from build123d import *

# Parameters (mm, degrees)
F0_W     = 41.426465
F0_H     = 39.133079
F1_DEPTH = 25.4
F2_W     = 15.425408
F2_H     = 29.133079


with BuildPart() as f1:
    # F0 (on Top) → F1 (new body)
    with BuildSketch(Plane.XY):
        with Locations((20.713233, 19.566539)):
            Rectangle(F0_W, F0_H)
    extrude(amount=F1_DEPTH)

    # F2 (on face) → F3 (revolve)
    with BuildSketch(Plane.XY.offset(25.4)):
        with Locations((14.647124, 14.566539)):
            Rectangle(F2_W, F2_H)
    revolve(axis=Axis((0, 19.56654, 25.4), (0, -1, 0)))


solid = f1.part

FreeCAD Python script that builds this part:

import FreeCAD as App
import Part
import Sketcher
Q = App.Units.Quantity

doc = App.newDocument("Part")
body = doc.addObject("PartDesign::Body", "Body")

# Sketch on XY plane
sketch1 = body.newObject("Sketcher::SketchObject", "Sketch")
sketch1.AttachmentSupport = (doc.getObject("XY_Plane"), [""])
sketch1.MapMode = "FlatFace"
sketch1.addGeometry([
    Part.LineSegment(App.Vector(0, 39, 0), App.Vector(0, 0, 0)),
    Part.LineSegment(App.Vector(0, 0, 0), App.Vector(41, 0, 0)),
    Part.LineSegment(App.Vector(41, 0, 0), App.Vector(41, 39, 0)),
    Part.LineSegment(App.Vector(41, 39, 0), App.Vector(0, 39, 0)),
], False)
sketch1.addConstraint([
    Sketcher.Constraint("Coincident", 0, 2, 1, 1),
    Sketcher.Constraint("Coincident", 1, 2, 2, 1),
    Sketcher.Constraint("Coincident", 2, 2, 3, 1),
    Sketcher.Constraint("Coincident", 3, 2, 0, 1),
    Sketcher.Constraint("Vertical", 0),
    Sketcher.Constraint("Horizontal", 1),
    Sketcher.Constraint("Vertical", 2),
    Sketcher.Constraint("Horizontal", 3),
    Sketcher.Constraint("Coincident", 0, 2, -1, 1),
    Sketcher.Constraint("DistanceY", 0, 2, 0, 1, Q("39.133079 mm")),
    Sketcher.Constraint("DistanceX", 1, 1, 1, 2, Q("41.426465 mm")),
])
pad1 = body.newObject("PartDesign::Pad", "Pad")
pad1.Profile = sketch1
pad1.Length = Q("1 in")

# Sketch on XY plane
sketch2 = body.newObject("Sketcher::SketchObject", "Sketch001")
sketch2.AttachmentSupport = (doc.getObject("XY_Plane"), [""])
sketch2.MapMode = "FlatFace"
sketch2.AttachmentOffset = App.Placement(App.Vector(0, 0, 1 * 25.4), App.Rotation())
sketch2.addGeometry([
    Part.LineSegment(App.Vector(7, 29, 0), App.Vector(7, 0, 0)),
    Part.LineSegment(App.Vector(7, 0, 0), App.Vector(22, 0, 0)),
    Part.LineSegment(App.Vector(22, 0, 0), App.Vector(22, 29, 0)),
    Part.LineSegment(App.Vector(22, 29, 0), App.Vector(7, 29, 0)),
], False)
sketch2.addConstraint([
    Sketcher.Constraint("Coincident", 0, 2, 1, 1),
    Sketcher.Constraint("Coincident", 1, 2, 2, 1),
    Sketcher.Constraint("Coincident", 2, 2, 3, 1),
    Sketcher.Constraint("Coincident", 3, 2, 0, 1),
    Sketcher.Constraint("Vertical", 0),
    Sketcher.Constraint("Horizontal", 1),
    Sketcher.Constraint("Vertical", 2),
    Sketcher.Constraint("Horizontal", 3),
    Sketcher.Constraint("PointOnObject", 0, 2, -1),
    Sketcher.Constraint("DistanceX", 1, 1, 1, 2, Q("15.425408 mm")),
    Sketcher.Constraint("DistanceY", 0, 2, 0, 1, Q("29.133079 mm")),
    Sketcher.Constraint("DistanceX", -1, 1, 0, 2, Q("6.93442 mm")),
])
revolution = body.newObject("PartDesign::Revolution", "Revolution")
revolution.Profile = sketch2
revolution.ReferenceAxis = (sketch2, ["V_Axis"])
revolution.Angle = 360

doc.recompute()
